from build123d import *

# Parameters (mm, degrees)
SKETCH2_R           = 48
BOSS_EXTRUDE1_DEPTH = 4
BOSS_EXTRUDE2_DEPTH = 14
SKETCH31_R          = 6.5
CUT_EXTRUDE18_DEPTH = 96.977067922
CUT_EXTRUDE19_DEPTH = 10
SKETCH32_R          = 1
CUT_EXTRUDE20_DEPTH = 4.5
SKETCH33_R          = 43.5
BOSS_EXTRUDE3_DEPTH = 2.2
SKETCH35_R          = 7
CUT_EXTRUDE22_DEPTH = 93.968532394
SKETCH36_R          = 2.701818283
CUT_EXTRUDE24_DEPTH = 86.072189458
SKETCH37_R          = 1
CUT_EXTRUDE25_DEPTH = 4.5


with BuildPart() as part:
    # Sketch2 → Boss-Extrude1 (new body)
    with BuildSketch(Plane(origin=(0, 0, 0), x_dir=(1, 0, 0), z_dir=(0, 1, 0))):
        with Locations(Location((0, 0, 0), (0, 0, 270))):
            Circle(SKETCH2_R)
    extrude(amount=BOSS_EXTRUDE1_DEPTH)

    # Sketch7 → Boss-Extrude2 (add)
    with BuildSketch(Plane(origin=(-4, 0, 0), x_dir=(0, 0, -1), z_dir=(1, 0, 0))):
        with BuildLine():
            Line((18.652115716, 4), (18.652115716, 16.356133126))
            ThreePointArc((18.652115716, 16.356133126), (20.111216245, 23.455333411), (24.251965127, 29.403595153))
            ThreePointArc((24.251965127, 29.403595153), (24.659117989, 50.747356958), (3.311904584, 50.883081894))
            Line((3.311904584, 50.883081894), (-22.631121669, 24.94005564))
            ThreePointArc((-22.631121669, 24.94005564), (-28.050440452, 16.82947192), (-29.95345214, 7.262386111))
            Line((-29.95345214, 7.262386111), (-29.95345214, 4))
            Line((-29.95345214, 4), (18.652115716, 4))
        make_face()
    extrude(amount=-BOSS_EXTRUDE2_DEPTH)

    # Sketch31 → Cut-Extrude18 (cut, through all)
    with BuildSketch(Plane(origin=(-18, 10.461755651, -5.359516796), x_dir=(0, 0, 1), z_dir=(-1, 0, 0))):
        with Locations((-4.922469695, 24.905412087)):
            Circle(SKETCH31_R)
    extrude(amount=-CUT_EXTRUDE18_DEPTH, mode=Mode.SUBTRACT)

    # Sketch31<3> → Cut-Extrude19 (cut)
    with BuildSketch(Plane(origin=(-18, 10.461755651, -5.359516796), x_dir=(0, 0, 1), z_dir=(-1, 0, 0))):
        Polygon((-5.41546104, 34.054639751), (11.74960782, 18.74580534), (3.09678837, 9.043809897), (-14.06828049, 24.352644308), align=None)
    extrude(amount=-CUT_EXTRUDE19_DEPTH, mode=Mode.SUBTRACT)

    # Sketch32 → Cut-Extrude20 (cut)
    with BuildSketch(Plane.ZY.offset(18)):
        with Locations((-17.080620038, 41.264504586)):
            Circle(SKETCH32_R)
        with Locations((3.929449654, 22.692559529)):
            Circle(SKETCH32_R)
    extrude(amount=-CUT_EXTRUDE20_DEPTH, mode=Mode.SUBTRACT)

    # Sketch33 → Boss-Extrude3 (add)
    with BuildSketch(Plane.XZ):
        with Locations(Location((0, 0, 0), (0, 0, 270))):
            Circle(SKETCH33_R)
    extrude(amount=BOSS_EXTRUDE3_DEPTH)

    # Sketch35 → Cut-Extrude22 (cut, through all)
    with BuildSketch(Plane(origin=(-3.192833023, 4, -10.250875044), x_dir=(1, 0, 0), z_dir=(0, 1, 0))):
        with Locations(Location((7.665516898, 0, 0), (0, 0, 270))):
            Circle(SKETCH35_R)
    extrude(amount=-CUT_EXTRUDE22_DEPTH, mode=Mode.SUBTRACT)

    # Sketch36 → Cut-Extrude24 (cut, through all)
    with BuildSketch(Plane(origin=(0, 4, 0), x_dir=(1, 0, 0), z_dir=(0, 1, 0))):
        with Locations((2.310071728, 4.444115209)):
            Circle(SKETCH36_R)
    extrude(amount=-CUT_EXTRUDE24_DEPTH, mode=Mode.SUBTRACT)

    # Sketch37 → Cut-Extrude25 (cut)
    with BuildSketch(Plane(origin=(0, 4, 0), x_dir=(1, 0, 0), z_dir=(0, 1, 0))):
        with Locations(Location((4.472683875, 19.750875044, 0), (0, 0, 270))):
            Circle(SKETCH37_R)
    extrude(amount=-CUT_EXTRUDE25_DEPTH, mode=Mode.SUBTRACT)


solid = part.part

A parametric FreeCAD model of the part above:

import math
import FreeCAD as App
import Part
import Sketcher
from FreeCAD import Vector
Q = App.Units.Quantity

doc = App.newDocument("Part")
params = doc.addObject("Spreadsheet::Sheet", "Params")
for row, (alias, value) in enumerate([
    ("sketch1_diameter", "96 mm"),
    ("pad1_length", "4 mm"),
    ("sketch2_radius", "18 mm"),
    ("sketch2_radius2", "15 mm"),
    ("sketch2_radius3", "25 mm"),
    ("pad2_length", "14 mm"),
    ("sketch3_diameter", "13 mm"),
    ("sketch4_length", "23 mm"),
    ("sketch4_length2", "13 mm"),
    ("pocket2_length", "10 mm"),
    ("sketch5_diameter", "2 mm"),
    ("pocket3_length", "4.5 mm"),
    ("sketch6_diameter", "87 mm"),
    ("pad3_length", "2.2 mm"),
    ("sketch7_diameter", "14 mm"),
    ("sketch9_diameter", "2 mm"),
    ("pocket6_length", "4.5 mm"),
], start=1):
    params.set(f"A{row}", alias)
    params.set(f"B{row}", "=" + value)
    params.setAlias(f"B{row}", alias)

body = doc.addObject("PartDesign::Body", "Body")

# Sketch on XZ plane
sketch1 = body.newObject("Sketcher::SketchObject", "Sketch")
sketch1.AttachmentSupport = (doc.getObject("XZ_Plane"), [""])
sketch1.MapMode = "FlatFace"
sketch1.addGeometry(Part.Circle(Vector(0, 0, 0), Vector(0, 0, 1), 48), False)
sketch1.addConstraint(Sketcher.Constraint("Coincident", 0, 3, -1, 1))
sketch1.addConstraint(Sketcher.Constraint("Diameter", 0, Q("96 mm")))
sketch1.setExpression("Constraints[1]", "Params.sketch1_diameter")
pad1 = body.newObject("PartDesign::Pad", "Pad")
pad1.Profile = sketch1
pad1.setExpression("Length", "Params.pad1_length")
pad1.Reversed = True

# Sketch on YZ plane
sketch2 = body.newObject("Sketcher::SketchObject", "Sketch001")
sketch2.AttachmentSupport = (doc.getObject("YZ_Plane"), [""])
sketch2.MapMode = "FlatFace"
sketch2.AttachmentOffset = App.Placement(Vector(0, 0, -4), App.Rotation())
sketch2.addGeometry(Part.LineSegment(Vector(4, -18.652116, 0), Vector(16.356133, -18.652116, 0)), False)
sketch2.addGeometry(Part.ArcOfCircle(Part.Circle(Vector(16.356133, -36.652116, 0), Vector(0, 0, 1), 18), math.radians(43.54288), math.radians(90)), False)
sketch2.addGeometry(Part.ArcOfCircle(Part.Circle(Vector(40.27648, -13.918506, 0), Vector(0, 0, 1), 15), math.radians(-136.45712), math.radians(45)), False)
sketch2.addGeometry(Part.LineSegment(Vector(50.883082, -3.311905, 0), Vector(24.940056, 22.631122, 0)), False)
sketch2.addGeometry(Part.ArcOfCircle(Part.Circle(Vector(7.262386, 4.953452, 0), Vector(0, 0, 1), 25), math.radians(45), math.radians(90)), False)
sketch2.addGeometry(Part.LineSegment(Vector(7.262386, 29.953452, 0), Vector(4, 29.953452, 0)), False)
sketch2.addGeometry(Part.LineSegment(Vector(4, 29.953452, 0), Vector(4, -18.652116, 0)), False)
sketch2.addConstraint(Sketcher.Constraint("Tangent", 0, 2, 1, 2))
sketch2.addConstraint(Sketcher.Constraint("Tangent", 1, 1, 2, 1))
sketch2.addConstraint(Sketcher.Constraint("Tangent", 2, 2, 3, 1))
sketch2.addConstraint(Sketcher.Constraint("Tangent", 3, 2, 4, 1))
sketch2.addConstraint(Sketcher.Constraint("Tangent", 4, 2, 5, 1))
sketch2.addConstraint(Sketcher.Constraint("Coincident", 5, 2, 6, 1))
sketch2.addConstraint(Sketcher.Constraint("Coincident", 6, 2, 0, 1))
sketch2.addConstraint(Sketcher.Constraint("Horizontal", 0))
sketch2.addConstraint(Sketcher.Constraint("Horizontal", 5))
sketch2.addConstraint(Sketcher.Constraint("Vertical", 6))
sketch2.addConstraint(Sketcher.Constraint("Radius", 1, Q("18 mm")))
sketch2.addConstraint(Sketcher.Constraint("Radius", 2, Q("15 mm")))
sketch2.addConstraint(Sketcher.Constraint("Radius", 4, Q("25 mm")))
sketch2.addConstraint(Sketcher.Constraint("Angle", 3, Q("135 deg")))
sketch2.addConstraint(Sketcher.Constraint("DistanceX", -1, 1, 5, 2, Q("4 mm")))
sketch2.addConstraint(Sketcher.Constraint("Distance", 3, Q("36.68898 mm")))
sketch2.addConstraint(Sketcher.Constraint("DistanceX", 0, 1, 0, 2, Q("12.356133 mm")))
sketch2.addConstraint(Sketcher.Constraint("DistanceX", 5, 2, 5, 1, Q("3.262386 mm")))
sketch2.addConstraint(Sketcher.Constraint("DistanceY", -1, 1, 3, 2, Q("22.631122 mm")))
sketch2.setExpression("Constraints[10]", "Params.sketch2_radius")
sketch2.setExpression("Constraints[11]", "Params.sketch2_radius2")
sketch2.setExpression("Constraints[12]", "Params.sketch2_radius3")
pad2 = body.newObject("PartDesign::Pad", "Pad001")
pad2.Profile = sketch2
pad2.setExpression("Length", "Params.pad2_length")
pad2.Reversed = True

# Sketch on YZ plane
sketch3 = body.newObject("Sketcher::SketchObject", "Sketch002")
sketch3.AttachmentSupport = (doc.getObject("YZ_Plane"), [""])
sketch3.MapMode = "FlatFace"
sketch3.AttachmentOffset = App.Placement(Vector(0, 0, -18), App.Rotation())
sketch3.addGeometry(Part.Circle(Vector(35.367168, -10.281986, 0), Vector(0, 0, 1), 6.5), False)
sketch3.addConstraint(Sketcher.Constraint("Diameter", 0, Q("13 mm")))
sketch3.addConstraint(Sketcher.Constraint("DistanceX", -1, 1, 0, 3, Q("35.367168 mm")))
sketch3.addConstraint(Sketcher.Constraint("DistanceY", 0, 3, -1, 1, Q("10.281986 mm")))
sketch3.setExpression("Constraints[0]", "Params.sketch3_diameter")
pocket1 = body.newObject("PartDesign::Pocket", "Pocket")
pocket1.Profile = sketch3
pocket1.Type = "ThroughAll"
pocket1.Reversed = True

# Sketch on YZ plane
sketch4 = body.newObject("Sketcher::SketchObject", "Sketch003")
sketch4.AttachmentSupport = (doc.getObject("YZ_Plane"), [""])
sketch4.MapMode = "FlatFace"
sketch4.AttachmentOffset = App.Placement(Vector(0, 0, -18), App.Rotation())
sketch4.addGeometry(Part.LineSegment(Vector(29.207561, 6.390091, 0), Vector(44.516395, -10.774978, 0)), False)
sketch4.addGeometry(Part.LineSegment(Vector(44.516395, -10.774978, 0), Vector(34.8144, -19.427797, 0)), False)
sketch4.addGeometry(Part.LineSegment(Vector(34.8144, -19.427797, 0), Vector(19.505566, -2.262728, 0)), False)
sketch4.addGeometry(Part.LineSegment(Vector(19.505566, -2.262728, 0), Vector(29.207561, 6.390091, 0)), False)
sketch4.addConstraint(Sketcher.Constraint("Coincident", 0, 2, 1, 1))
sketch4.addConstraint(Sketcher.Constraint("Coincident", 1, 2, 2, 1))
sketch4.addConstraint(Sketcher.Constraint("Coincident", 2, 2, 3, 1))
sketch4.addConstraint(Sketcher.Constraint("Coincident", 3, 2, 0, 1))
sketch4.addConstraint(Sketcher.Constraint("Perpendicular", 0, 1))
sketch4.addConstraint(Sketcher.Constraint("Perpendicular", 1, 2))
sketch4.addConstraint(Sketcher.Constraint("Perpendicular", 2, 3))
sketch4.addConstraint(Sketcher.Constraint("Distance", 0, Q("23 mm")))
sketch4.addConstraint(Sketcher.Constraint("Distance", 1, Q("13 mm")))
sketch4.addConstraint(Sketcher.Constraint("DistanceX", -1, 1, 1, 2, Q("34.8144 mm")))
sketch4.addConstraint(Sketcher.Constraint("DistanceY", 2, 2, -1, 1, Q("2.262728 mm")))
sketch4.addConstraint(Sketcher.Constraint("DistanceX", -1, 1, 3, 2, Q("29.207561 mm")))
sketch4.setExpression("Constraints[7]", "Params.sketch4_length")
sketch4.setExpression("Constraints[8]", "Params.sketch4_length2")
pocket2 = body.newObject("PartDesign::Pocket", "Pocket001")
pocket2.Profile = sketch4
pocket2.setExpression("Length", "Params.pocket2_length")
pocket2.Reversed = True

# Sketch on YZ plane
sketch5 = body.newObject("Sketcher::SketchObject", "Sketch004")
sketch5.AttachmentSupport = (doc.getObject("YZ_Plane"), [""])
sketch5.MapMode = "FlatFace"
sketch5.AttachmentOffset = App.Placement(Vector(0, 0, -18), App.Rotation())
sketch5.addGeometry(Part.Circle(Vector(41.264505, -17.08062, 0), Vector(0, 0, 1), 1), False)
sketch5.addGeometry(Part.Circle(Vector(22.69256, 3.92945, 0), Vector(0, 0, 1), 1), False)
sketch5.addConstraint(Sketcher.Constraint("Equal", 0, 1))
sketch5.addConstraint(Sketcher.Constraint("Diameter", 0, Q("2 mm")))
sketch5.addConstraint(Sketcher.Constraint("DistanceY", 0, 3, -1, 1, Q("17.08062 mm")))
sketch5.addConstraint(Sketcher.Constraint("DistanceX", -1, 1, 1, 3, Q("22.69256 mm")))
sketch5.addConstraint(Sketcher.Constraint("DistanceY", -1, 1, 1, 3, Q("3.92945 mm")))
sketch5.addConstraint(Sketcher.Constraint("DistanceX", -1, 1, 0, 3, Q("41.264505 mm")))
sketch5.setExpression("Constraints[1]", "Params.sketch5_diameter")
pocket3 = body.newObject("PartDesign::Pocket", "Pocket002")
pocket3.Profile = sketch5
pocket3.setExpression("Length", "Params.pocket3_length")
pocket3.Reversed = True

# Sketch on XZ plane
sketch6 = body.newObject("Sketcher::SketchObject", "Sketch005")
sketch6.AttachmentSupport = (doc.getObject("XZ_Plane"), [""])
sketch6.MapMode = "FlatFace"
sketch6.addGeometry(Part.Circle(Vector(0, 0, 0), Vector(0, 0, 1), 43.5), False)
sketch6.addConstraint(Sketcher.Constraint("Coincident", 0, 3, -1, 1))
sketch6.addConstraint(Sketcher.Constraint("Diameter", 0, Q("87 mm")))
sketch6.setExpression("Constraints[1]", "Params.sketch6_diameter")
pad3 = body.newObject("PartDesign::Pad", "Pad002")
pad3.Profile = sketch6
pad3.setExpression("Length", "Params.pad3_length")

# Sketch on XZ plane
sketch7 = body.newObject("Sketcher::SketchObject", "Sketch006")
sketch7.AttachmentSupport = (doc.getObject("XZ_Plane"), [""])
sketch7.MapMode = "FlatFace"
sketch7.AttachmentOffset = App.Placement(Vector(0, 0, -4), App.Rotation())
sketch7.addGeometry(Part.Circle(Vector(4.472684, -10.250875, 0), Vector(0, 0, 1), 7), False)
sketch7.addConstraint(Sketcher.Constraint("Diameter", 0, Q("14 mm")))
sketch7.addConstraint(Sketcher.Constraint("DistanceX", -1, 1, 0, 3, Q("4.472684 mm")))
sketch7.addConstraint(Sketcher.Constraint("DistanceY", 0, 3, -1, 1, Q("10.250875 mm")))
sketch7.setExpression("Constraints[0]", "Params.sketch7_diameter")
pocket4 = body.newObject("PartDesign::Pocket", "Pocket003")
pocket4.Profile = sketch7
pocket4.Type = "ThroughAll"
pocket4.Reversed = True

# Sketch on XZ plane
sketch8 = body.newObject("Sketcher::SketchObject", "Sketch007")
sketch8.AttachmentSupport = (doc.getObject("XZ_Plane"), [""])
sketch8.MapMode = "FlatFace"
sketch8.AttachmentOffset = App.Placement(Vector(0, 0, -4), App.Rotation())
sketch8.addGeometry(Part.Circle(Vector(2.310072, -4.444115, 0), Vector(0, 0, 1), 2.701818), False)
sketch8.addConstraint(Sketcher.Constraint("Diameter", 0, Q("5.403637 mm")))
sketch8.addConstraint(Sketcher.Constraint("DistanceX", -1, 1, 0, 3, Q("2.310072 mm")))
sketch8.addConstraint(Sketcher.Constraint("DistanceY", 0, 3, -1, 1, Q("4.444115 mm")))
pocket5 = body.newObject("PartDesign::Pocket", "Pocket004")
pocket5.Profile = sketch8
pocket5.Type = "ThroughAll"
pocket5.Reversed = True

# Sketch on XZ plane
sketch9 = body.newObject("Sketcher::SketchObject", "Sketch008")
sketch9.AttachmentSupport = (doc.getObject("XZ_Plane"), [""])
sketch9.MapMode = "FlatFace"
sketch9.AttachmentOffset = App.Placement(Vector(0, 0, -4), App.Rotation())
sketch9.addGeometry(Part.Circle(Vector(4.472684, -19.750875, 0), Vector(0, 0, 1), 1), False)
sketch9.addConstraint(Sketcher.Constraint("Diameter", 0, Q("2 mm")))
sketch9.addConstraint(Sketcher.Constraint("DistanceX", -1, 1, 0, 3, Q("4.472684 mm")))
sketch9.addConstraint(Sketcher.Constraint("DistanceY", 0, 3, -1, 1, Q("19.750875 mm")))
sketch9.setExpression("Constraints[0]", "Params.sketch9_diameter")
pocket6 = body.newObject("PartDesign::Pocket", "Pocket005")
pocket6.Profile = sketch9
pocket6.setExpression("Length", "Params.pocket6_length")
pocket6.Reversed = True

doc.recompute()
